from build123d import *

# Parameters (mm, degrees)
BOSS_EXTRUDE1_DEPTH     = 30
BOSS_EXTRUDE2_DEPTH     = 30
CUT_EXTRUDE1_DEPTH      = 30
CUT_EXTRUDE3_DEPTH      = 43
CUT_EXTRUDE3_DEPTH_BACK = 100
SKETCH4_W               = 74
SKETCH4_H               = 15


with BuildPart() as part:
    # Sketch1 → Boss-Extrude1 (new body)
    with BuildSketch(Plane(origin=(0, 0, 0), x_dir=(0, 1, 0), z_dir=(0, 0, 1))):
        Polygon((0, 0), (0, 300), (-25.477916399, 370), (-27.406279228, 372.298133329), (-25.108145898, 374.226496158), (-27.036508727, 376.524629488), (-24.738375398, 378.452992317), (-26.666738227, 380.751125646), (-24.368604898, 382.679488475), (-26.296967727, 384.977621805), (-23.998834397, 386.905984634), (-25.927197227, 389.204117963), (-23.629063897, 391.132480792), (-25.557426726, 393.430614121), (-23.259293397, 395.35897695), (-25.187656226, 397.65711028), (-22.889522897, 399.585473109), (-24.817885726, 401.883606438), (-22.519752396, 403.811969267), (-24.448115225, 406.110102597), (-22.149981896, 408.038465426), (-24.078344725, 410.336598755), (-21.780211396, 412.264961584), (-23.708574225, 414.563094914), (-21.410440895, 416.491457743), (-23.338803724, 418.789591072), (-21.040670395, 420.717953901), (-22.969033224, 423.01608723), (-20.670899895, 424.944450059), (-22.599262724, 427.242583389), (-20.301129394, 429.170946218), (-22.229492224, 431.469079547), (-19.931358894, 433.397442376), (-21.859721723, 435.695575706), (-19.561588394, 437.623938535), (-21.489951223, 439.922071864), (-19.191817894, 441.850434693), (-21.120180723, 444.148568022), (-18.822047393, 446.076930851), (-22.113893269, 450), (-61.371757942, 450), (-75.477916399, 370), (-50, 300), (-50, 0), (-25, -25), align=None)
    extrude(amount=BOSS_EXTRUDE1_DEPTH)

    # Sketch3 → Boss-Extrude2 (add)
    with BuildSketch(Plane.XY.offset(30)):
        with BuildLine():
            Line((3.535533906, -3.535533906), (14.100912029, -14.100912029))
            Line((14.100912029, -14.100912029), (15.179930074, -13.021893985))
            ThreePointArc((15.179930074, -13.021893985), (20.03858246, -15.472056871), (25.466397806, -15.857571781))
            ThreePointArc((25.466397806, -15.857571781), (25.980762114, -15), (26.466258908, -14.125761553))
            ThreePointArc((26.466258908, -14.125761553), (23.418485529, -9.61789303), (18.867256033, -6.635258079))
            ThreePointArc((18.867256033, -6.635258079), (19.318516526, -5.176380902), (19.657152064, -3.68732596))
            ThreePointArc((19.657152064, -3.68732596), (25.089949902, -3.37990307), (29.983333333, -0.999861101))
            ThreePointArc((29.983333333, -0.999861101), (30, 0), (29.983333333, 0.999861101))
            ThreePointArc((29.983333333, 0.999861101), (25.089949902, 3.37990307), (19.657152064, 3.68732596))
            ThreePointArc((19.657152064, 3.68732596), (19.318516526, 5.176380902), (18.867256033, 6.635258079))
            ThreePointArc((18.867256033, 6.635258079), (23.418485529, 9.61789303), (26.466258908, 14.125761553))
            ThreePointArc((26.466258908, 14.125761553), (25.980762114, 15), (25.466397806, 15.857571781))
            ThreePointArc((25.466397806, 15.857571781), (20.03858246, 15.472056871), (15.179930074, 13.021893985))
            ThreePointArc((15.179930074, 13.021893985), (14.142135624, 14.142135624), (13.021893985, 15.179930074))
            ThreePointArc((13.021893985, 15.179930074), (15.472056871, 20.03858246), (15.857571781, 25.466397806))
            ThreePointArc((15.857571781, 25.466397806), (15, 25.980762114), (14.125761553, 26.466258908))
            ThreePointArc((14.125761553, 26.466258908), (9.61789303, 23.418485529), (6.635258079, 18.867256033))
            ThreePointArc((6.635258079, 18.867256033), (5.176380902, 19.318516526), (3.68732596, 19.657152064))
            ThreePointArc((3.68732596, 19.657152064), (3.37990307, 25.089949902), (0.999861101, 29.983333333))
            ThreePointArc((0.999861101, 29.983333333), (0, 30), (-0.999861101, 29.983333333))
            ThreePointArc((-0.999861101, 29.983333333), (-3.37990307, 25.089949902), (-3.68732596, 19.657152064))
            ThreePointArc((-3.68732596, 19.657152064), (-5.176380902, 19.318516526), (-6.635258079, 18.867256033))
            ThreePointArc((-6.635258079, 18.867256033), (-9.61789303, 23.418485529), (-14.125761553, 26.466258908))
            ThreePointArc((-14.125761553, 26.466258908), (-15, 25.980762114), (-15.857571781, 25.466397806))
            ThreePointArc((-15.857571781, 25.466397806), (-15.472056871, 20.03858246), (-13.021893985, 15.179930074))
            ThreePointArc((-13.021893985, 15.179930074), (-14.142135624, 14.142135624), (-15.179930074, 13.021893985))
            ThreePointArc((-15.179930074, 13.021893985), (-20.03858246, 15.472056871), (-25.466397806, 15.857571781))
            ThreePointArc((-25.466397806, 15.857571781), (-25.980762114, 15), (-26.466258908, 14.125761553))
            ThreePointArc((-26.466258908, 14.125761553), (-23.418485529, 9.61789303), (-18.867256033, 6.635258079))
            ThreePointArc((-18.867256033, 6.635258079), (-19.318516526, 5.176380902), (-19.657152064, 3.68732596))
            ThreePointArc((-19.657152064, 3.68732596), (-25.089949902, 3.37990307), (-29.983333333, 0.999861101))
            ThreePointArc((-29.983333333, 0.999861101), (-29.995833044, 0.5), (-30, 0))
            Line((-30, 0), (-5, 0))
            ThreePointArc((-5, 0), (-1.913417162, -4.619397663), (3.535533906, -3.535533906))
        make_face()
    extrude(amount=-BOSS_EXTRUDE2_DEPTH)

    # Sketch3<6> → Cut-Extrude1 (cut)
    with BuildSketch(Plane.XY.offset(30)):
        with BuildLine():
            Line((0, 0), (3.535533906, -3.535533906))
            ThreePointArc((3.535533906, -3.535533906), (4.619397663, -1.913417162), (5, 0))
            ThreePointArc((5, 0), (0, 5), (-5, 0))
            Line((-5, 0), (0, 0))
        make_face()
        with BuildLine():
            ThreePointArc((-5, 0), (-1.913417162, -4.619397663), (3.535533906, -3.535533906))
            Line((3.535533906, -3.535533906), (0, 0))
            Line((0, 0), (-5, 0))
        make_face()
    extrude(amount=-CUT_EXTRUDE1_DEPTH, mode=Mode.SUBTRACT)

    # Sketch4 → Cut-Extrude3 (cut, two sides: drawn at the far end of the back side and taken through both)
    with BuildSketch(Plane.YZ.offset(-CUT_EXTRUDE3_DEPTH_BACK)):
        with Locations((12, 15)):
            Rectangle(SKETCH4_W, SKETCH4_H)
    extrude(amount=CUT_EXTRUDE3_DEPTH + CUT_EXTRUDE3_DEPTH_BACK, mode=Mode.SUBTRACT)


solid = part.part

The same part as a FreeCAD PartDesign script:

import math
import FreeCAD as App
import Part
import Sketcher

V = App.Vector
Q = App.Units.Quantity


def add_polygon(sketch, points):
    """Adds a closed chain of lines whose ends are joined by coincident constraints."""
    first, n = sketch.GeometryCount, len(points)
    for a, b in zip(points, points[1:] + points[:1]):
        sketch.addGeometry(Part.LineSegment(App.Vector(*a, 0), App.Vector(*b, 0)), False)
    for i in range(n):
        sketch.addConstraint(Sketcher.Constraint("Coincident", first + i, 2, first + (i + 1) % n, 1))

doc = App.newDocument("Part")
body = doc.addObject("PartDesign::Body", "Body")

# Sketch on XY plane
sketch1 = body.newObject("Sketcher::SketchObject", "Sketch")
sketch1.AttachmentSupport = (doc.getObject("XY_Plane"), [""])
sketch1.MapMode = "FlatFace"
add_polygon(sketch1, [(0, 0), (-300, 0), (-370, -25.5), (-372.3, -27.4), (-374.2, -25.1), (-376.5, -27), (-378.5, -24.7), (-380.8, -26.7), (-382.7, -24.4), (-385, -26.3), (-386.9, -24), (-389.2, -25.9), (-391.1, -23.6), (-393.4, -25.6), (-395.4, -23.3), (-397.7, -25.2), (-399.6, -22.9), (-401.9, -24.8), (-403.8, -22.5), (-406.1, -24.4), (-408, -22.1), (-410.3, -24.1), (-412.3, -21.8), (-414.6, -23.7), (-416.5, -21.4), (-418.8, -23.3), (-420.7, -21), (-423, -23), (-424.9, -20.7), (-427.2, -22.6), (-429.2, -20.3), (-431.5, -22.2), (-433.4, -19.9), (-435.7, -21.9), (-437.6, -19.6), (-439.9, -21.5), (-441.9, -19.2), (-444.1, -21.1), (-446.1, -18.8), (-450, -22.1), (-450, -61.4), (-370, -75.5), (-300, -50), (0, -50), (25, -25)])  # lines 0-44
sketch1.addConstraint([
    Sketcher.Constraint("Horizontal", 0),
    Sketcher.Constraint("Vertical", 39),
    Sketcher.Constraint("Horizontal", 42),
    Sketcher.Constraint("Coincident", 44, 2, -1, 1),
    Sketcher.Constraint("PointOnObject", 42, 2, -2),
    Sketcher.Constraint("Perpendicular", 2, 3),
    Sketcher.Constraint("Perpendicular", 3, 4),
    Sketcher.Constraint("Perpendicular", 4, 5),
    Sketcher.Constraint("Perpendicular", 5, 6),
    Sketcher.Constraint("Perpendicular", 6, 7),
    Sketcher.Constraint("Perpendicular", 7, 8),
    Sketcher.Constraint("Perpendicular", 8, 9),
    Sketcher.Constraint("Perpendicular", 9, 10),
    Sketcher.Constraint("Perpendicular", 10, 11),
    Sketcher.Constraint("Perpendicular", 11, 12),
    Sketcher.Constraint("Perpendicular", 12, 13),
    Sketcher.Constraint("Perpendicular", 13, 14),
    Sketcher.Constraint("Perpendicular", 14, 15),
    Sketcher.Constraint("Perpendicular", 15, 16),
    Sketcher.Constraint("Perpendicular", 16, 17),
    Sketcher.Constraint("Perpendicular", 17, 18),
    Sketcher.Constraint("Perpendicular", 18, 19),
    Sketcher.Constraint("Perpendicular", 19, 20),
    Sketcher.Constraint("Perpendicular", 20, 21),
    Sketcher.Constraint("Perpendicular", 21, 22),
    Sketcher.Constraint("Perpendicular", 22, 23),
    Sketcher.Constraint("Perpendicular", 23, 24),
    Sketcher.Constraint("Perpendicular", 24, 25),
    Sketcher.Constraint("Perpendicular", 25, 26),
    Sketcher.Constraint("Perpendicular", 26, 27),
    Sketcher.Constraint("Perpendicular", 27, 28),
    Sketcher.Constraint("Perpendicular", 28, 29),
    Sketcher.Constraint("Perpendicular", 29, 30),
    Sketcher.Constraint("Perpendicular", 30, 31),
    Sketcher.Constraint("Perpendicular", 31, 32),
    Sketcher.Constraint("Perpendicular", 32, 33),
    Sketcher.Constraint("Perpendicular", 33, 34),
    Sketcher.Constraint("Perpendicular", 34, 35),
    Sketcher.Constraint("Perpendicular", 35, 36),
    Sketcher.Constraint("Perpendicular", 36, 37),
    Sketcher.Constraint("Perpendicular", 37, 38),
    Sketcher.Constraint("Parallel", 1, 41),
    Sketcher.Constraint("Perpendicular", 43, 44),
    Sketcher.Constraint("Vertical", 1, 2, 40, 2),
    Sketcher.Constraint("Vertical", 0, 2, 41, 2),
    Sketcher.Constraint("Equal", 2, 3),
    Sketcher.Constraint("Equal", 3, 4),
    Sketcher.Constraint("Equal", 4, 5),
    Sketcher.Constraint("Equal", 5, 6),
    Sketcher.Constraint("Equal", 6, 7),
    Sketcher.Constraint("Equal", 7, 8),
    Sketcher.Constraint("Equal", 8, 9),
    Sketcher.Constraint("Equal", 9, 10),
    Sketcher.Constraint("Equal", 10, 11),
    Sketcher.Constraint("Equal", 11, 12),
    Sketcher.Constraint("Equal", 12, 13),
    Sketcher.Constraint("Equal", 13, 14),
    Sketcher.Constraint("Equal", 14, 15),
    Sketcher.Constraint("Equal", 15, 16),
    Sketcher.Constraint("Equal", 16, 17),
    Sketcher.Constraint("Equal", 17, 18),
    Sketcher.Constraint("Equal", 18, 19),
    Sketcher.Constraint("Equal", 19, 20),
    Sketcher.Constraint("Equal", 20, 21),
    Sketcher.Constraint("Equal", 21, 22),
    Sketcher.Constraint("Equal", 22, 23),
    Sketcher.Constraint("Equal", 23, 24),
    Sketcher.Constraint("Equal", 24, 25),
    Sketcher.Constraint("Equal", 25, 26),
    Sketcher.Constraint("Equal", 26, 27),
    Sketcher.Constraint("Equal", 27, 28),
    Sketcher.Constraint("Equal", 28, 29),
    Sketcher.Constraint("Equal", 29, 30),
    Sketcher.Constraint("Equal", 30, 31),
    Sketcher.Constraint("Equal", 31, 32),
    Sketcher.Constraint("Equal", 32, 33),
    Sketcher.Constraint("Equal", 33, 34),
    Sketcher.Constraint("Equal", 34, 35),
    Sketcher.Constraint("Equal", 35, 36),
    Sketcher.Constraint("Equal", 36, 37),
    Sketcher.Constraint("Equal", 43, 44),
    Sketcher.Constraint("DistanceX", 0, 2, 0, 1, Q("300 mm")),
    Sketcher.Constraint("Angle", 1, Q("-160 deg")),
    Sketcher.Constraint("Angle", 2, Q("-140 deg")),
    Sketcher.Constraint("Angle", 40, Q("-10 deg")),
    Sketcher.Constraint("Distance", 2, Q("3 mm")),
    Sketcher.Constraint("DistanceX", 1, 2, -1, 1, Q("370 mm")),
    Sketcher.Constraint("DistanceX", 38, 2, -1, 1, Q("450 mm")),
    Sketcher.Constraint("DistanceY", 41, 2, -1, 1, Q("50 mm")),
])
pad1 = body.newObject("PartDesign::Pad", "Pad")
pad1.Profile = sketch1
pad1.Length = 30

# Sketch on XY plane
sketch2 = body.newObject("Sketcher::SketchObject", "Sketch001")
sketch2.AttachmentSupport = (doc.getObject("XY_Plane"), [""])
sketch2.MapMode = "FlatFace"
sketch2.AttachmentOffset = App.Placement(V(0, 0, 30), App.Rotation())
sketch2.addGeometry([
    Part.LineSegment(V(3.5, -3.5, 0), V(14.1, -14.1, 0)),  # 0
    Part.LineSegment(V(14.1, -14.1, 0), V(15.2, -13, 0)),  # 1
    Part.ArcOfCircle(Part.Circle(V(23.7, -2.1, 0), V(0, 0, 1), 13.8), math.radians(-128), math.radians(-83)),  # 2
    Part.ArcOfCircle(Part.Circle(V(0, 0, 0), V(0, 0, 1), 30), math.radians(-31.91), math.radians(-28.09)),  # 3
    Part.ArcOfCircle(Part.Circle(V(13.7, -19.5, 0), V(0, 0, 1), 13.8), math.radians(23), math.radians(68)),  # 4
    Part.ArcOfCircle(Part.Circle(V(0, 0, 0), V(0, 0, 1), 20), math.radians(-19.38), math.radians(-10.62)),  # 5
    Part.ArcOfCircle(Part.Circle(V(21.6, 10, 0), V(0, 0, 1), 13.8), math.radians(-98), math.radians(-53)),  # 6
    Part.ArcOfCircle(Part.Circle(V(0, 0, 0), V(0, 0, 1), 30), math.radians(-1.91), math.radians(1.91)),  # 7
    Part.ArcOfCircle(Part.Circle(V(21.6, -10, 0), V(0, 0, 1), 13.8), math.radians(53), math.radians(98)),  # 8
    Part.ArcOfCircle(Part.Circle(V(0, 0, 0), V(0, 0, 1), 20), math.radians(10.62), math.radians(19.38)),  # 9
    Part.ArcOfCircle(Part.Circle(V(13.7, 19.5, 0), V(0, 0, 1), 13.8), math.radians(-68), math.radians(-23)),  # 10
    Part.ArcOfCircle(Part.Circle(V(0, 0, 0), V(0, 0, 1), 30), math.radians(28.09), math.radians(31.91)),  # 11
    Part.ArcOfCircle(Part.Circle(V(23.7, 2.1, 0), V(0, 0, 1), 13.8), math.radians(83), math.radians(128)),  # 12
    Part.ArcOfCircle(Part.Circle(V(0, 0, 0), V(0, 0, 1), 20), math.radians(40.62), math.radians(49.38)),  # 13
    Part.ArcOfCircle(Part.Circle(V(2.1, 23.7, 0), V(0, 0, 1), 13.8), math.radians(-38), math.radians(7)),  # 14
    Part.ArcOfCircle(Part.Circle(V(0, 0, 0), V(0, 0, 1), 30), math.radians(58.09), math.radians(61.91)),  # 15
    Part.ArcOfCircle(Part.Circle(V(19.5, 13.7, 0), V(0, 0, 1), 13.8), math.radians(113), math.radians(158)),  # 16
    Part.ArcOfCircle(Part.Circle(V(0, 0, 0), V(0, 0, 1), 20), math.radians(70.62), math.radians(79.38)),  # 17
    Part.ArcOfCircle(Part.Circle(V(-10, 21.6, 0), V(0, 0, 1), 13.8), math.radians(-8), math.radians(37)),  # 18
    Part.ArcOfCircle(Part.Circle(V(0, 0, 0), V(0, 0, 1), 30), math.radians(88.09), math.radians(91.91)),  # 19
    Part.ArcOfCircle(Part.Circle(V(10, 21.6, 0), V(0, 0, 1), 13.8), math.radians(143), math.radians(188)),  # 20
    Part.ArcOfCircle(Part.Circle(V(0, 0, 0), V(0, 0, 1), 20), math.radians(100.62), math.radians(109.38)),  # 21
    Part.ArcOfCircle(Part.Circle(V(-19.5, 13.7, 0), V(0, 0, 1), 13.8), math.radians(22), math.radians(67)),  # 22
    Part.ArcOfCircle(Part.Circle(V(0, 0, 0), V(0, 0, 1), 30), math.radians(118.09), math.radians(121.91)),  # 23
    Part.ArcOfCircle(Part.Circle(V(-2.1, 23.7, 0), V(0, 0, 1), 13.8), math.radians(173), math.radians(218)),  # 24
    Part.ArcOfCircle(Part.Circle(V(0, 0, 0), V(0, 0, 1), 20), math.radians(130.62), math.radians(139.38)),  # 25
    Part.ArcOfCircle(Part.Circle(V(-23.7, 2.1, 0), V(0, 0, 1), 13.8), math.radians(52), math.radians(97)),  # 26
    Part.ArcOfCircle(Part.Circle(V(0, 0, 0), V(0, 0, 1), 30), math.radians(148.09), math.radians(151.91)),  # 27
    Part.ArcOfCircle(Part.Circle(V(-13.7, 19.5, 0), V(0, 0, 1), 13.8), math.radians(-157), math.radians(-112)),  # 28
    Part.ArcOfCircle(Part.Circle(V(0, 0, 0), V(0, 0, 1), 20), math.radians(160.62), math.radians(169.38)),  # 29
    Part.ArcOfCircle(Part.Circle(V(-21.6, -10, 0), V(0, 0, 1), 13.8), math.radians(82), math.radians(127)),  # 30
    Part.ArcOfCircle(Part.Circle(V(0, 0, 0), V(0, 0, 1), 30), math.radians(178.09), math.radians(180)),  # 31
    Part.LineSegment(V(-30, 0, 0), V(-5, 0, 0)),  # 32
    Part.ArcOfCircle(Part.Circle(V(0, 0, 0), V(0, 0, 1), 5), math.radians(180), math.radians(315)),  # 33
], False)
sketch2.addConstraint([
    Sketcher.Constraint("Coincident", 0, 2, 1, 1),
    Sketcher.Constraint("Coincident", 1, 2, 2, 1),
    Sketcher.Constraint("Coincident", 2, 2, 3, 1),
    Sketcher.Constraint("Coincident", 3, 2, 4, 1),
    Sketcher.Constraint("Coincident", 4, 2, 5, 1),
    Sketcher.Constraint("Coincident", 5, 2, 6, 1),
    Sketcher.Constraint("Coincident", 6, 2, 7, 1),
    Sketcher.Constraint("Coincident", 7, 2, 8, 1),
    Sketcher.Constraint("Coincident", 8, 2, 9, 1),
    Sketcher.Constraint("Coincident", 9, 2, 10, 1),
    Sketcher.Constraint("Coincident", 10, 2, 11, 1),
    Sketcher.Constraint("Coincident", 11, 2, 12, 1),
    Sketcher.Constraint("Coincident", 12, 2, 13, 1),
    Sketcher.Constraint("Coincident", 13, 2, 14, 1),
    Sketcher.Constraint("Coincident", 14, 2, 15, 1),
    Sketcher.Constraint("Coincident", 15, 2, 16, 1),
    Sketcher.Constraint("Coincident", 16, 2, 17, 1),
    Sketcher.Constraint("Coincident", 17, 2, 18, 1),
    Sketcher.Constraint("Coincident", 18, 2, 19, 1),
    Sketcher.Constraint("Coincident", 19, 2, 20, 1),
    Sketcher.Constraint("Coincident", 20, 2, 21, 1),
    Sketcher.Constraint("Coincident", 21, 2, 22, 1),
    Sketcher.Constraint("Coincident", 22, 2, 23, 1),
    Sketcher.Constraint("Coincident", 23, 2, 24, 1),
    Sketcher.Constraint("Coincident", 24, 2, 25, 1),
    Sketcher.Constraint("Coincident", 25, 2, 26, 1),
    Sketcher.Constraint("Coincident", 26, 2, 27, 1),
    Sketcher.Constraint("Coincident", 27, 2, 28, 1),
    Sketcher.Constraint("Coincident", 28, 2, 29, 1),
    Sketcher.Constraint("Coincident", 29, 2, 30, 1),
    Sketcher.Constraint("Coincident", 30, 2, 31, 1),
    Sketcher.Constraint("Coincident", 31, 2, 32, 1),
    Sketcher.Constraint("Coincident", 32, 2, 33, 1),
    Sketcher.Constraint("Coincident", 33, 2, 0, 1),
    Sketcher.Constraint("Horizontal", 32),
    Sketcher.Constraint("Coincident", 3, 3, -1, 1),
    Sketcher.Constraint("Coincident", 5, 3, -1, 1),
    Sketcher.Constraint("Coincident", 7, 3, -1, 1),
    Sketcher.Constraint("Coincident", 9, 3, -1, 1),
    Sketcher.Constraint("Coincident", 11, 3, -1, 1),
    Sketcher.Constraint("Coincident", 13, 3, -1, 1),
    Sketcher.Constraint("Coincident", 15, 3, -1, 1),
    Sketcher.Constraint("Coincident", 17, 3, -1, 1),
    Sketcher.Constraint("Coincident", 19, 3, -1, 1),
    Sketcher.Constraint("Coincident", 21, 3, -1, 1),
    Sketcher.Constraint("Coincident", 23, 3, -1, 1),
    Sketcher.Constraint("Coincident", 25, 3, -1, 1),
    Sketcher.Constraint("Coincident", 27, 3, -1, 1),
    Sketcher.Constraint("Coincident", 29, 3, -1, 1),
    Sketcher.Constraint("Coincident", 31, 3, -1, 1),
    Sketcher.Constraint("Coincident", 33, 3, -1, 1),
    Sketcher.Constraint("Equal", 2, 4),
    Sketcher.Constraint("Equal", 4, 6),
    Sketcher.Constraint("Equal", 3, 7),
    Sketcher.Constraint("Equal", 6, 8),
    Sketcher.Constraint("Equal", 5, 9),
    Sketcher.Constraint("Equal", 8, 10),
    Sketcher.Constraint("Equal", 7, 11),
    Sketcher.Constraint("Equal", 10, 12),
    Sketcher.Constraint("Equal", 9, 13),
    Sketcher.Constraint("Equal", 12, 14),
    Sketcher.Constraint("Equal", 11, 15),
    Sketcher.Constraint("Equal", 14, 16),
    Sketcher.Constraint("Equal", 13, 17),
    Sketcher.Constraint("Equal", 16, 18),
    Sketcher.Constraint("Equal", 15, 19),
    Sketcher.Constraint("Equal", 18, 20),
    Sketcher.Constraint("Equal", 17, 21),
    Sketcher.Constraint("Equal", 20, 22),
    Sketcher.Constraint("Equal", 19, 23),
    Sketcher.Constraint("Equal", 22, 24),
    Sketcher.Constraint("Equal", 21, 25),
    Sketcher.Constraint("Equal", 24, 26),
    Sketcher.Constraint("Equal", 23, 27),
    Sketcher.Constraint("Equal", 26, 28),
    Sketcher.Constraint("Equal", 25, 29),
    Sketcher.Constraint("Equal", 28, 30),
    Sketcher.Constraint("Equal", 27, 31),
    Sketcher.Constraint("Symmetric", 2, 3, 26, 3, -1, 1),
    Sketcher.Constraint("Symmetric", 4, 3, 28, 3, -1, 1),
    Sketcher.Constraint("Symmetric", 6, 3, 30, 3, -1, 1),
    Sketcher.Constraint("Symmetric", 18, 3, 20, 3, -2),
    Sketcher.Constraint("Symmetric", 16, 3, 22, 3, -2),
    Sketcher.Constraint("Symmetric", 14, 3, 24, 3, -2),
    Sketcher.Constraint("Symmetric", 12, 3, 26, 3, -2),
    Sketcher.Constraint("Symmetric", 10, 3, 28, 3, -2),
    Sketcher.Constraint("Symmetric", 8, 3, 30, 3, -2),
    Sketcher.Constraint("PointOnObject", 31, 2, -1),
    Sketcher.Constraint("Perpendicular", 0, 1),
    Sketcher.Constraint("Vertical", 1, 2, 12, 2),
    Sketcher.Constraint("Radius", 3, Q("30 mm")),
    Sketcher.Constraint("Radius", 5, Q("20 mm")),
    Sketcher.Constraint("Radius", 33, Q("5 mm")),
    Sketcher.Constraint("Angle", 0, Q("-45 deg")),
    Sketcher.Constraint("DistanceY", -1, 1, 6, 3, Q("10 mm")),
    Sketcher.Constraint("DistanceX", 18, 3, -1, 1, Q("10 mm")),
    Sketcher.Constraint("Radius", 2, Q("13.825616 mm")),
    Sketcher.Constraint("Distance", 0, Q("14.941701 mm")),
    Sketcher.Constraint("Distance", 1, Q("1.525962 mm")),
    Sketcher.Constraint("DistanceY", 2, 3, -1, 1, Q("2.143612 mm")),
    Sketcher.Constraint("DistanceY", 4, 3, -1, 1, Q("19.46412 mm")),
    Sketcher.Constraint("DistanceX", -1, 1, 6, 3, Q("21.607731 mm")),
    Sketcher.Constraint("DistanceX", -1, 1, 14, 3, Q("2.143612 mm")),
    Sketcher.Constraint("DistanceX", -1, 1, 16, 3, Q("19.46412 mm")),
    Sketcher.Constraint("DistanceY", -1, 1, 18, 3, Q("21.607731 mm")),
    Sketcher.Constraint("DistanceX", -1, 1, 3, 2, Q("26.466259 mm")),
    Sketcher.Constraint("DistanceY", -1, 1, 13, 2, Q("15.17993 mm")),
    Sketcher.Constraint("DistanceX", -1, 1, 15, 2, Q("14.125762 mm")),
])
pad2 = body.newObject("PartDesign::Pad", "Pad001")
pad2.Profile = sketch2
pad2.Length = 30
pad2.Reversed = True

# Sketch on XY plane
sketch3 = body.newObject("Sketcher::SketchObject", "Sketch002")
sketch3.AttachmentSupport = (doc.getObject("XY_Plane"), [""])
sketch3.MapMode = "FlatFace"
sketch3.AttachmentOffset = App.Placement(V(0, 0, 30), App.Rotation())
sketch3.addGeometry([
    Part.ArcOfCircle(Part.Circle(V(0, 0, 0), V(0, 0, 1), 5), math.radians(-45), math.radians(0)),
    Part.ArcOfCircle(Part.Circle(V(0, 0, 0), V(0, 0, 1), 5), math.radians(0), math.radians(180)),
    Part.ArcOfCircle(Part.Circle(V(0, 0, 0), V(0, 0, 1), 5), math.radians(180), math.radians(315)),
], False)
sketch3.addConstraint([
    Sketcher.Constraint("Tangent", 0, 2, 1, 1),
    Sketcher.Constraint("Tangent", 1, 2, 2, 1),
    Sketcher.Constraint("Tangent", 2, 2, 0, 1),
    Sketcher.Constraint("Coincident", 0, 3, -1, 1),
    Sketcher.Constraint("PointOnObject", 0, 2, -1),
    Sketcher.Constraint("PointOnObject", 1, 2, -1),
    Sketcher.Constraint("Radius", 0, Q("5 mm")),
    Sketcher.Constraint("DistanceX", -1, 1, 2, 2, Q("3.535534 mm")),
])
pocket1 = body.newObject("PartDesign::Pocket", "Pocket")
pocket1.Profile = sketch3
pocket1.Length = 30

# Sketch on YZ plane
sketch4 = body.newObject("Sketcher::SketchObject", "Sketch003")
sketch4.AttachmentSupport = (doc.getObject("YZ_Plane"), [""])
sketch4.MapMode = "FlatFace"
add_polygon(sketch4, [(-25, 22), (-25, 8), (49, 8), (49, 22)])  # lines 0-3
sketch4.addConstraint([
    Sketcher.Constraint("Vertical", 0),
    Sketcher.Constraint("Horizontal", 1),
    Sketcher.Constraint("Vertical", 2),
    Sketcher.Constraint("Horizontal", 3),
    Sketcher.Constraint("DistanceX", 1, 1, 1, 2, Q("74 mm")),
    Sketcher.Constraint("DistanceY", 0, 2, 0, 1, Q("15 mm")),
    Sketcher.Constraint("DistanceX", 0, 2, -1, 1, Q("25 mm")),
    Sketcher.Constraint("DistanceY", -1, 1, 0, 2, Q("7.5 mm")),
])
pocket2 = body.newObject("PartDesign::Pocket", "Pocket001")
pocket2.Profile = sketch4
pocket2.Type = "TwoLengths"
pocket2.Length = 43
pocket2.Length2 = 100
pocket2.Reversed = True

doc.recompute()
